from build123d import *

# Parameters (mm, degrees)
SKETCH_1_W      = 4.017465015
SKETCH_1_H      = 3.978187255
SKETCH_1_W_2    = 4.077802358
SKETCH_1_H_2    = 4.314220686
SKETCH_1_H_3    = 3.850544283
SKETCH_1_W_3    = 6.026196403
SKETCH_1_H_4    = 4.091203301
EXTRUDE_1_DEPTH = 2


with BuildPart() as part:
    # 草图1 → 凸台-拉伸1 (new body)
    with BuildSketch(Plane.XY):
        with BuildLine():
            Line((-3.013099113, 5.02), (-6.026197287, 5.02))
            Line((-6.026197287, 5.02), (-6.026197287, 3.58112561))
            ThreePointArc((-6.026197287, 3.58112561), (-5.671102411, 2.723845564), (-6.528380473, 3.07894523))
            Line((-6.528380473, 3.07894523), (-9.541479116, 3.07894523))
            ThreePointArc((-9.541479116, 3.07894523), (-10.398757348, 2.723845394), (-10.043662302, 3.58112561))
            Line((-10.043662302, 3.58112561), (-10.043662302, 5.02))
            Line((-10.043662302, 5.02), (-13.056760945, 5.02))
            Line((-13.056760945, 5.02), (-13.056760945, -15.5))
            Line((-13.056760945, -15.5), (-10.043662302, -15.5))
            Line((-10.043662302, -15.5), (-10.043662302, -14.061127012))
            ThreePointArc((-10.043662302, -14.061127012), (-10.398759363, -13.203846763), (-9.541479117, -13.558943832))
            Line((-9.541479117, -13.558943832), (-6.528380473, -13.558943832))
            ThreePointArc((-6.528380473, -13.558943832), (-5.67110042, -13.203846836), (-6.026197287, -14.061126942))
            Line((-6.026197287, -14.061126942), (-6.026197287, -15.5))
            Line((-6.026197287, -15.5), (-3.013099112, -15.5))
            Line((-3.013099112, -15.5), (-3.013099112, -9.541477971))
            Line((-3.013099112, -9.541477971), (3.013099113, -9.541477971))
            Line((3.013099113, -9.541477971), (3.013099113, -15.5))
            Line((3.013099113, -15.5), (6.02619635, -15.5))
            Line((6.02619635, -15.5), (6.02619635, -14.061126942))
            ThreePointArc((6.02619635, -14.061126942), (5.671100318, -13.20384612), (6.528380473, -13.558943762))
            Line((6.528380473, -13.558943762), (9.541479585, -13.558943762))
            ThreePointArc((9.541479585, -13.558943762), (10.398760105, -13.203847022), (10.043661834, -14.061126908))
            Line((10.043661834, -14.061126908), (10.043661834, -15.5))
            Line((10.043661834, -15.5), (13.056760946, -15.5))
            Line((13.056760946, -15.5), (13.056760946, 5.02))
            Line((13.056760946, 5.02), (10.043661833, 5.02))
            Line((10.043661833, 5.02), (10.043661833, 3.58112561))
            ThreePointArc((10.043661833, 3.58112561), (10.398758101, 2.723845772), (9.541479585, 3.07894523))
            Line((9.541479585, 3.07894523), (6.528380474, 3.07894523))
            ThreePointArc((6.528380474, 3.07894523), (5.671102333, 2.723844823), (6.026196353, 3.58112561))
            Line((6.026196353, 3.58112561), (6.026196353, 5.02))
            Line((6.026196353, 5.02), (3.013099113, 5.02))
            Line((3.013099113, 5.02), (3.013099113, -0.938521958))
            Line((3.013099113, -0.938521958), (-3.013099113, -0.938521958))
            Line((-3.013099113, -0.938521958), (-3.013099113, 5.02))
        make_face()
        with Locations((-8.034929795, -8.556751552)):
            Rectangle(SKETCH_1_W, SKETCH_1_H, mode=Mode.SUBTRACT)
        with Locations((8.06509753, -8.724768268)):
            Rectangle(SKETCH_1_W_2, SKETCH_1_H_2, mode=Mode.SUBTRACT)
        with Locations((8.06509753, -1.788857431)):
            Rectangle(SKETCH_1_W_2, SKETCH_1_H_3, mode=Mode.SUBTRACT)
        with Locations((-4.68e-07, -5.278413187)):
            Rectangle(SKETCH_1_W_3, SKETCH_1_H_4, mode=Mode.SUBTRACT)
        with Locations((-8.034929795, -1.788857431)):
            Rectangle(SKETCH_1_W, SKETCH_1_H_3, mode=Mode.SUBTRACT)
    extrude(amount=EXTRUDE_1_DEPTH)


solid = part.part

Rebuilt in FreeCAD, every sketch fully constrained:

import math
import FreeCAD as App
import Part
import Sketcher

V = App.Vector


def add_polygon(sketch, points):
    """Adds a closed chain of lines whose ends are joined by coincident constraints."""
    first, n = sketch.GeometryCount, len(points)
    for a, b in zip(points, points[1:] + points[:1]):
        sketch.addGeometry(Part.LineSegment(App.Vector(*a, 0), App.Vector(*b, 0)), False)
    for i in range(n):
        sketch.addConstraint(Sketcher.Constraint("Coincident", first + i, 2, first + (i + 1) % n, 1))

doc = App.newDocument("Part")
body = doc.addObject("PartDesign::Body", "Body")

sketch1 = body.newObject("Sketcher::SketchObject", "Sketch")
sketch1.AttachmentSupport = (doc.getObject("XY_Plane"), [""])
sketch1.MapMode = "FlatFace"
sketch1.addGeometry(Part.LineSegment(V(-3, 5, 0), V(-6, 5, 0)), False)
sketch1.addGeometry(Part.LineSegment(V(-6, 5, 0), V(-6, 3.6, 0)), False)
sketch1.addGeometry(Part.ArcOfCircle(Part.Circle(V(-6, 3.1, 0), V(0, 0, 1), 0.5), math.radians(180), math.radians(450)), False)
sketch1.addGeometry(Part.LineSegment(V(-6.5, 3.1, 0), V(-9.5, 3.1, 0)), False)
sketch1.addGeometry(Part.ArcOfCircle(Part.Circle(V(-10, 3.1, 0), V(0, 0, 1), 0.5), math.radians(90), math.radians(360)), False)
sketch1.addGeometry(Part.LineSegment(V(-10, 3.6, 0), V(-10, 5, 0)), False)
sketch1.addGeometry(Part.LineSegment(V(-10, 5, 0), V(-13.1, 5, 0)), False)
sketch1.addGeometry(Part.LineSegment(V(-13.1, 5, 0), V(-13.1, -15.5, 0)), False)
sketch1.addGeometry(Part.LineSegment(V(-13.1, -15.5, 0), V(-10, -15.5, 0)), False)
sketch1.addGeometry(Part.LineSegment(V(-10, -15.5, 0), V(-10, -14.1, 0)), False)
sketch1.addGeometry(Part.ArcOfCircle(Part.Circle(V(-10, -13.6, 0), V(0, 0, 1), 0.5), math.radians(0), math.radians(270)), False)
sketch1.addGeometry(Part.LineSegment(V(-9.5, -13.6, 0), V(-6.5, -13.6, 0)), False)
sketch1.addGeometry(Part.ArcOfCircle(Part.Circle(V(-6, -13.6, 0), V(0, 0, 1), 0.5), math.radians(-90), math.radians(180)), False)
sketch1.addGeometry(Part.LineSegment(V(-6, -14.1, 0), V(-6, -15.5, 0)), False)
sketch1.addGeometry(Part.LineSegment(V(-6, -15.5, 0), V(-3, -15.5, 0)), False)
sketch1.addGeometry(Part.LineSegment(V(-3, -15.5, 0), V(-3, -9.5, 0)), False)
sketch1.addGeometry(Part.LineSegment(V(-3, -9.5, 0), V(3, -9.5, 0)), False)
sketch1.addGeometry(Part.LineSegment(V(3, -9.5, 0), V(3, -15.5, 0)), False)
sketch1.addGeometry(Part.LineSegment(V(3, -15.5, 0), V(6, -15.5, 0)), False)
sketch1.addGeometry(Part.LineSegment(V(6, -15.5, 0), V(6, -14.1, 0)), False)
sketch1.addGeometry(Part.ArcOfCircle(Part.Circle(V(6, -13.6, 0), V(0, 0, 1), 0.5), math.radians(0), math.radians(270)), False)
sketch1.addGeometry(Part.LineSegment(V(6.5, -13.6, 0), V(9.5, -13.6, 0)), False)
sketch1.addGeometry(Part.ArcOfCircle(Part.Circle(V(10, -13.6, 0), V(0, 0, 1), 0.5), math.radians(-90), math.radians(180)), False)
sketch1.addGeometry(Part.LineSegment(V(10, -14.1, 0), V(10, -15.5, 0)), False)
sketch1.addGeometry(Part.LineSegment(V(10, -15.5, 0), V(13.1, -15.5, 0)), False)
sketch1.addGeometry(Part.LineSegment(V(13.1, -15.5, 0), V(13.1, 5, 0)), False)
sketch1.addGeometry(Part.LineSegment(V(13.1, 5, 0), V(10, 5, 0)), False)
sketch1.addGeometry(Part.LineSegment(V(10, 5, 0), V(10, 3.6, 0)), False)
sketch1.addGeometry(Part.ArcOfCircle(Part.Circle(V(10, 3.1, 0), V(0, 0, 1), 0.5), math.radians(180), math.radians(450)), False)
sketch1.addGeometry(Part.LineSegment(V(9.5, 3.1, 0), V(6.5, 3.1, 0)), False)
sketch1.addGeometry(Part.ArcOfCircle(Part.Circle(V(6, 3.1, 0), V(0, 0, 1), 0.5), math.radians(90), math.radians(360)), False)
sketch1.addGeometry(Part.LineSegment(V(6, 3.6, 0), V(6, 5, 0)), False)
sketch1.addGeometry(Part.LineSegment(V(6, 5, 0), V(3, 5, 0)), False)
sketch1.addGeometry(Part.LineSegment(V(3, 5, 0), V(3, -0.9, 0)), False)
sketch1.addGeometry(Part.LineSegment(V(3, -0.9, 0), V(-3, -0.9, 0)), False)
sketch1.addGeometry(Part.LineSegment(V(-3, -0.9, 0), V(-3, 5, 0)), False)
add_polygon(sketch1, [(-6, -10.5), (-10, -10.5), (-10, -6.6), (-6, -6.6)])
add_polygon(sketch1, [(10.1, -10.9), (6, -10.9), (6, -6.6), (10.1, -6.6)])
add_polygon(sketch1, [(3, -7.3), (-3, -7.3), (-3, -3.2), (3, -3.2)])
add_polygon(sketch1, [(-6, -3.7), (-10, -3.7), (-10, 0.1), (-6, 0.1)])
add_polygon(sketch1, [(10.1, -3.7), (6, -3.7), (6, 0.1), (10.1, 0.1)])
sketch1.addConstraint(Sketcher.Constraint("Coincident", 0, 2, 1, 1))
sketch1.addConstraint(Sketcher.Constraint("Coincident", 1, 2, 2, 2))
sketch1.addConstraint(Sketcher.Constraint("Coincident", 2, 1, 3, 1))
sketch1.addConstraint(Sketcher.Constraint("Coincident", 3, 2, 4, 2))
sketch1.addConstraint(Sketcher.Constraint("Coincident", 4, 1, 5, 1))
sketch1.addConstraint(Sketcher.Constraint("Coincident", 5, 2, 6, 1))
sketch1.addConstraint(Sketcher.Constraint("Coincident", 6, 2, 7, 1))
sketch1.addConstraint(Sketcher.Constraint("Coincident", 7, 2, 8, 1))
sketch1.addConstraint(Sketcher.Constraint("Coincident", 8, 2, 9, 1))
sketch1.addConstraint(Sketcher.Constraint("Coincident", 9, 2, 10, 2))
sketch1.addConstraint(Sketcher.Constraint("Coincident", 10, 1, 11, 1))
sketch1.addConstraint(Sketcher.Constraint("Coincident", 11, 2, 12, 2))
sketch1.addConstraint(Sketcher.Constraint("Coincident", 12, 1, 13, 1))
sketch1.addConstraint(Sketcher.Constraint("Coincident", 13, 2, 14, 1))
sketch1.addConstraint(Sketcher.Constraint("Coincident", 14, 2, 15, 1))
sketch1.addConstraint(Sketcher.Constraint("Coincident", 15, 2, 16, 1))
sketch1.addConstraint(Sketcher.Constraint("Coincident", 16, 2, 17, 1))
sketch1.addConstraint(Sketcher.Constraint("Coincident", 17, 2, 18, 1))
sketch1.addConstraint(Sketcher.Constraint("Coincident", 18, 2, 19, 1))
sketch1.addConstraint(Sketcher.Constraint("Coincident", 19, 2, 20, 2))
sketch1.addConstraint(Sketcher.Constraint("Coincident", 20, 1, 21, 1))
sketch1.addConstraint(Sketcher.Constraint("Coincident", 21, 2, 22, 2))
sketch1.addConstraint(Sketcher.Constraint("Coincident", 22, 1, 23, 1))
sketch1.addConstraint(Sketcher.Constraint("Coincident", 23, 2, 24, 1))
sketch1.addConstraint(Sketcher.Constraint("Coincident", 24, 2, 25, 1))
sketch1.addConstraint(Sketcher.Constraint("Coincident", 25, 2, 26, 1))
sketch1.addConstraint(Sketcher.Constraint("Coincident", 26, 2, 27, 1))
sketch1.addConstraint(Sketcher.Constraint("Coincident", 27, 2, 28, 2))
sketch1.addConstraint(Sketcher.Constraint("Coincident", 28, 1, 29, 1))
sketch1.addConstraint(Sketcher.Constraint("Coincident", 29, 2, 30, 2))
sketch1.addConstraint(Sketcher.Constraint("Coincident", 30, 1, 31, 1))
sketch1.addConstraint(Sketcher.Constraint("Coincident", 31, 2, 32, 1))
sketch1.addConstraint(Sketcher.Constraint("Coincident", 32, 2, 33, 1))
sketch1.addConstraint(Sketcher.Constraint("Coincident", 33, 2, 34, 1))
sketch1.addConstraint(Sketcher.Constraint("Coincident", 34, 2, 35, 1))
sketch1.addConstraint(Sketcher.Constraint("Coincident", 35, 2, 0, 1))
sketch1.addConstraint(Sketcher.Constraint("Horizontal", 0))
sketch1.addConstraint(Sketcher.Constraint("Vertical", 1))
sketch1.addConstraint(Sketcher.Constraint("Horizontal", 3))
sketch1.addConstraint(Sketcher.Constraint("Vertical", 5))
sketch1.addConstraint(Sketcher.Constraint("Horizontal", 6))
sketch1.addConstraint(Sketcher.Constraint("Vertical", 7))
sketch1.addConstraint(Sketcher.Constraint("Horizontal", 8))
sketch1.addConstraint(Sketcher.Constraint("Vertical", 9))
sketch1.addConstraint(Sketcher.Constraint("Horizontal", 11))
sketch1.addConstraint(Sketcher.Constraint("Vertical", 13))
sketch1.addConstraint(Sketcher.Constraint("Horizontal", 14))
sketch1.addConstraint(Sketcher.Constraint("Vertical", 15))
sketch1.addConstraint(Sketcher.Constraint("Horizontal", 16))
sketch1.addConstraint(Sketcher.Constraint("Vertical", 17))
sketch1.addConstraint(Sketcher.Constraint("Horizontal", 18))
sketch1.addConstraint(Sketcher.Constraint("Vertical", 19))
sketch1.addConstraint(Sketcher.Constraint("Horizontal", 21))
sketch1.addConstraint(Sketcher.Constraint("Vertical", 23))
sketch1.addConstraint(Sketcher.Constraint("Horizontal", 24))
sketch1.addConstraint(Sketcher.Constraint("Vertical", 25))
sketch1.addConstraint(Sketcher.Constraint("Horizontal", 26))
sketch1.addConstraint(Sketcher.Constraint("Vertical", 27))
sketch1.addConstraint(Sketcher.Constraint("Horizontal", 29))
sketch1.addConstraint(Sketcher.Constraint("Vertical", 31))
sketch1.addConstraint(Sketcher.Constraint("Horizontal", 32))
sketch1.addConstraint(Sketcher.Constraint("Vertical", 33))
sketch1.addConstraint(Sketcher.Constraint("Horizontal", 34))
sketch1.addConstraint(Sketcher.Constraint("Vertical", 35))
sketch1.addConstraint(Sketcher.Constraint("Horizontal", 36))
sketch1.addConstraint(Sketcher.Constraint("Vertical", 37))
sketch1.addConstraint(Sketcher.Constraint("Horizontal", 38))
sketch1.addConstraint(Sketcher.Constraint("Vertical", 39))
sketch1.addConstraint(Sketcher.Constraint("Horizontal", 40))
sketch1.addConstraint(Sketcher.Constraint("Vertical", 41))
sketch1.addConstraint(Sketcher.Constraint("Horizontal", 42))
sketch1.addConstraint(Sketcher.Constraint("Vertical", 43))
sketch1.addConstraint(Sketcher.Constraint("Horizontal", 44))
sketch1.addConstraint(Sketcher.Constraint("Vertical", 45))
sketch1.addConstraint(Sketcher.Constraint("Horizontal", 46))
sketch1.addConstraint(Sketcher.Constraint("Vertical", 47))
sketch1.addConstraint(Sketcher.Constraint("Horizontal", 48))
sketch1.addConstraint(Sketcher.Constraint("Vertical", 49))
sketch1.addConstraint(Sketcher.Constraint("Horizontal", 50))
sketch1.addConstraint(Sketcher.Constraint("Vertical", 51))
sketch1.addConstraint(Sketcher.Constraint("Horizontal", 52))
sketch1.addConstraint(Sketcher.Constraint("Vertical", 53))
sketch1.addConstraint(Sketcher.Constraint("Horizontal", 54))
sketch1.addConstraint(Sketcher.Constraint("Vertical", 55))
sketch1.addConstraint(Sketcher.Constraint("Equal", 2, 4))
sketch1.addConstraint(Sketcher.Constraint("Equal", 4, 10))
sketch1.addConstraint(Sketcher.Constraint("Equal", 10, 12))
sketch1.addConstraint(Sketcher.Constraint("Equal", 12, 20))
sketch1.addConstraint(Sketcher.Constraint("Equal", 20, 22))
sketch1.addConstraint(Sketcher.Constraint("Equal", 22, 28))
sketch1.addConstraint(Sketcher.Constraint("Equal", 28, 30))
sketch1.addConstraint(Sketcher.Constraint("Symmetric", 12, 3, 20, 3, -2))
sketch1.addConstraint(Sketcher.Constraint("Symmetric", 10, 3, 22, 3, -2))
sketch1.addConstraint(Sketcher.Constraint("Symmetric", 4, 3, 28, 3, -2))
sketch1.addConstraint(Sketcher.Constraint("Symmetric", 2, 3, 30, 3, -2))
sketch1.addConstraint(Sketcher.Constraint("Symmetric", 14, 2, 17, 2, -2))
sketch1.addConstraint(Sketcher.Constraint("Symmetric", 8, 2, 23, 2, -2))
sketch1.addConstraint(Sketcher.Constraint("Symmetric", 6, 2, 25, 2, -2))
sketch1.addConstraint(Sketcher.Constraint("Symmetric", 0, 2, 31, 2, -2))
sketch1.addConstraint(Sketcher.Constraint("Symmetric", 38, 2, 41, 2, -2))
sketch1.addConstraint(Sketcher.Constraint("Symmetric", 51, 2, 52, 2, -2))
sketch1.addConstraint(Sketcher.Constraint("Horizontal", 2, 3, 4, 3))
sketch1.addConstraint(Sketcher.Constraint("Horizontal", 10, 3, 12, 3))
sketch1.addConstraint(Sketcher.Constraint("Horizontal", 0, 2, 5, 2))
sketch1.addConstraint(Sketcher.Constraint("Horizontal", 22, 3, 10, 1))
sketch1.addConstraint(Sketcher.Constraint("Horizontal", 8, 2, 13, 2))
sketch1.addConstraint(Sketcher.Constraint("Horizontal", 11, 2, 20, 1))
sketch1.addConstraint(Sketcher.Constraint("Horizontal", 3, 2, 28, 1))
sketch1.addConstraint(Sketcher.Constraint("Horizontal", 50, 2, 53, 2))
sketch1.addConstraint(Sketcher.Constraint("Vertical", 4, 3, 10, 3))
sketch1.addConstraint(Sketcher.Constraint("Vertical", 2, 3, 12, 3))
sketch1.addConstraint(Sketcher.Constraint("Vertical", 12, 3, 0, 2))
sketch1.addConstraint(Sketcher.Constraint("Vertical", 10, 3, 4, 1))
sketch1.addConstraint(Sketcher.Constraint("Vertical", 5, 2, 8, 2))
sketch1.addConstraint(Sketcher.Constraint("Vertical", 1, 2, 12, 1))
sketch1.addConstraint(Sketcher.Constraint("Vertical", 30, 3, 18, 2))
sketch1.addConstraint(Sketcher.Constraint("Vertical", 23, 2, 26, 2))
sketch1.addConstraint(Sketcher.Constraint("Vertical", 17, 2, 32, 2))
sketch1.addConstraint(Sketcher.Constraint("Vertical", 15, 2, 34, 2))
sketch1.addConstraint(Sketcher.Constraint("Vertical", 9, 2, 36, 2))
sketch1.addConstraint(Sketcher.Constraint("Vertical", 13, 2, 38, 2))
sketch1.addConstraint(Sketcher.Constraint("Vertical", 35, 2, 44, 2))
sketch1.addConstraint(Sketcher.Constraint("Vertical", 33, 2, 46, 2))
sketch1.addConstraint(Sketcher.Constraint("Vertical", 37, 2, 48, 2))
sketch1.addConstraint(Sketcher.Constraint("Vertical", 39, 2, 50, 2))
sketch1.addConstraint(Sketcher.Constraint("Vertical", 43, 2, 54, 2))
sketch1.addConstraint(Sketcher.Constraint("Equal", 0, 3))
sketch1.addConstraint(Sketcher.Constraint("Equal", 3, 6))
sketch1.addConstraint(Sketcher.Constraint("Equal", 5, 9))
sketch1.addConstraint(Sketcher.Constraint("Equal", 17, 33))
sketch1.addConstraint(Sketcher.Constraint("DistanceY", 7, 2, 7, 1, 20.52))
sketch1.addConstraint(Sketcher.Constraint("DistanceY", 7, 2, -1, 1, 15.5))
sketch1.addConstraint(Sketcher.Constraint("DistanceX", 0, 2, 0, 1, 3.013098))
sketch1.addConstraint(Sketcher.Constraint("DistanceX", 16, 1, 16, 2, 6.026198))
sketch1.addConstraint(Sketcher.Constraint("DistanceX", -1, 1, 42, 2, 10.103999))
sketch1.addConstraint(Sketcher.Constraint("Radius", 2, 0.502182))
sketch1.addConstraint(Sketcher.Constraint("DistanceY", 33, 2, 33, 1, 5.958522))
sketch1.addConstraint(Sketcher.Constraint("DistanceY", 41, 1, 41, 2, 4.314221))
sketch1.addConstraint(Sketcher.Constraint("DistanceY", 1, 2, 1, 1, 1.438874))
sketch1.addConstraint(Sketcher.Constraint("DistanceY", 37, 1, 37, 2, 3.978187))
sketch1.addConstraint(Sketcher.Constraint("DistanceY", 45, 1, 45, 2, 4.091203))
sketch1.addConstraint(Sketcher.Constraint("DistanceY", 49, 1, 49, 2, 3.850544))
sketch1.addConstraint(Sketcher.Constraint("DistanceY", 40, 2, -1, 1, 10.881879))
sketch1.addConstraint(Sketcher.Constraint("DistanceY", 45, 2, -1, 1, 3.232812))
sketch1.addConstraint(Sketcher.Constraint("DistanceY", 48, 2, -1, 1, 3.71413))
sketch1.addConstraint(Sketcher.Constraint("DistanceY", -1, 1, 2, 1, 3.078945))
pad1 = body.newObject("PartDesign::Pad", "Pad")
pad1.Profile = sketch1
pad1.Length = 2

doc.recompute()
